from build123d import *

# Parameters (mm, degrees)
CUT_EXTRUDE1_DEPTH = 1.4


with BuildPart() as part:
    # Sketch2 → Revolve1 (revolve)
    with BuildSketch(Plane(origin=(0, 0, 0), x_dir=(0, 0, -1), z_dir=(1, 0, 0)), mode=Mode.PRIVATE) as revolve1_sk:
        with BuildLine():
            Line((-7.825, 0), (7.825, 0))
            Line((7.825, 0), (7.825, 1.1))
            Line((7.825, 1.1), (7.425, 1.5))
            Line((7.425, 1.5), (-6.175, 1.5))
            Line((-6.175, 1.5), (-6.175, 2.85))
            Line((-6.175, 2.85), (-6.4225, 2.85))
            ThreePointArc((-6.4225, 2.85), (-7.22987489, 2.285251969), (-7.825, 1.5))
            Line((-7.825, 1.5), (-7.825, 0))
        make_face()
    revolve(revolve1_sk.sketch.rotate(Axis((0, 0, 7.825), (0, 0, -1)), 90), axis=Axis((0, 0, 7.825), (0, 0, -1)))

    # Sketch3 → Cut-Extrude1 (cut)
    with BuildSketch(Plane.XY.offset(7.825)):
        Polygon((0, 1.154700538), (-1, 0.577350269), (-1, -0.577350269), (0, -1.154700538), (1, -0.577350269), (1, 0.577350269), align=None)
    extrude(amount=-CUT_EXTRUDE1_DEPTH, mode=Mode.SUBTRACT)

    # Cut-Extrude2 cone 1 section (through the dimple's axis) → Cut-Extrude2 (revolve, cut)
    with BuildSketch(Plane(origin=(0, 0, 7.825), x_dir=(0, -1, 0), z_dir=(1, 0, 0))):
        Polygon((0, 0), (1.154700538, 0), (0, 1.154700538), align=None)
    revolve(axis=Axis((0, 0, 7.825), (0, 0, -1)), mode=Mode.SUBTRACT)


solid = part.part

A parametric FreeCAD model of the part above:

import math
import FreeCAD as App
import Part
import Sketcher
Q = App.Units.Quantity

doc = App.newDocument("Part")
params = doc.addObject("Spreadsheet::Sheet", "Params")
for row, (alias, value) in enumerate([
    ("sketch1_width", "1.1 mm"),
    ("sketch1_width2", "1.5 mm"),
    ("sketch1_height", "13.6 mm"),
    ("sketch1_width3", "1.35 mm"),
    ("sketch1_height2", "15.65 mm"),
    ("revolution_angle", "360 deg"),
    ("pocket1_length", "1.4 mm"),
    ("groove_angle", "360 deg"),
], start=1):
    params.set(f"A{row}", alias)
    params.set(f"B{row}", "=" + value)
    params.setAlias(f"B{row}", alias)

body = doc.addObject("PartDesign::Body", "Body")

sketch1 = doc.addObject("Sketcher::SketchObject", "Sketch")
body.addObject(sketch1)
sketch1.AttachmentSupport = (doc.YZ_Plane, [""])
sketch1.MapMode = "FlatFace"
sketch1.addGeometry([
    Part.LineSegment(App.Vector(0, 7.83, 0), App.Vector(0, -7.83, 0)),
    Part.LineSegment(App.Vector(0, -7.83, 0), App.Vector(1.1, -7.83, 0)),
    Part.LineSegment(App.Vector(1.1, -7.83, 0), App.Vector(1.5, -7.42, 0)),
    Part.LineSegment(App.Vector(1.5, -7.42, 0), App.Vector(1.5, 6.17, 0)),
    Part.LineSegment(App.Vector(1.5, 6.17, 0), App.Vector(2.85, 6.17, 0)),
    Part.LineSegment(App.Vector(2.85, 6.17, 0), App.Vector(2.85, 6.42, 0)),
    Part.ArcOfCircle(Part.Circle(App.Vector(0, 5.03, 0), App.Vector(0, 0, 1), 3.17), math.radians(26), math.radians(62)),
    Part.LineSegment(App.Vector(1.5, 7.83, 0), App.Vector(0, 7.83, 0)),
], False)
sketch1.addConstraint([
    Sketcher.Constraint("Coincident", 0, 2, 1, 1),
    Sketcher.Constraint("Coincident", 1, 2, 2, 1),
    Sketcher.Constraint("Coincident", 2, 2, 3, 1),
    Sketcher.Constraint("Coincident", 3, 2, 4, 1),
    Sketcher.Constraint("Coincident", 4, 2, 5, 1),
    Sketcher.Constraint("Coincident", 5, 2, 6, 1),
    Sketcher.Constraint("Coincident", 6, 2, 7, 1),
    Sketcher.Constraint("Coincident", 7, 2, 0, 1),
    Sketcher.Constraint("Vertical", 0),
    Sketcher.Constraint("Horizontal", 1),
    Sketcher.Constraint("Vertical", 3),
    Sketcher.Constraint("Horizontal", 4),
    Sketcher.Constraint("Vertical", 5),
    Sketcher.Constraint("Horizontal", 7),
    Sketcher.Constraint("Symmetric", 0, 2, 7, 2, -1, 1),
    Sketcher.Constraint("PointOnObject", 6, 3, -2),
    Sketcher.Constraint("Vertical", 3, 2, 6, 2),
    Sketcher.Constraint("Angle", 2, Q("45 deg")),
    Sketcher.Constraint("DistanceX", 1, 1, 1, 2, Q("1.1 mm")),
    Sketcher.Constraint("DistanceX", 7, 2, 7, 1, Q("1.5 mm")),
    Sketcher.Constraint("DistanceY", 3, 1, 3, 2, Q("13.6 mm")),
    Sketcher.Constraint("DistanceX", 4, 1, 4, 2, Q("1.35 mm")),
    Sketcher.Constraint("DistanceY", 0, 2, 0, 1, Q("15.65 mm")),
    Sketcher.Constraint("DistanceY", 5, 1, 5, 2, Q("0.2475 mm")),
])
sketch1.setExpression("Constraints[18]", "Params.sketch1_width")
sketch1.setExpression("Constraints[19]", "Params.sketch1_width2")
sketch1.setExpression("Constraints[20]", "Params.sketch1_height")
sketch1.setExpression("Constraints[21]", "Params.sketch1_width3")
sketch1.setExpression("Constraints[22]", "Params.sketch1_height2")
revolution = doc.addObject("PartDesign::Revolution", "Revolution")
body.addObject(revolution)
revolution.Profile = sketch1
revolution.ReferenceAxis = (sketch1, ["V_Axis"])
revolution.setExpression("Angle", "Params.revolution_angle")

sketch2 = doc.addObject("Sketcher::SketchObject", "Sketch001")
body.addObject(sketch2)
sketch2.AttachmentSupport = (doc.XY_Plane, [""])
sketch2.MapMode = "FlatFace"
sketch2.AttachmentOffset = App.Placement(App.Vector(0, 0, 7.825), App.Rotation())
sketch2.addGeometry([
    Part.LineSegment(App.Vector(0, 1.2, 0), App.Vector(-1, 0.6, 0)),
    Part.LineSegment(App.Vector(-1, 0.6, 0), App.Vector(-1, -0.6, 0)),
    Part.LineSegment(App.Vector(-1, -0.6, 0), App.Vector(0, -1.2, 0)),
    Part.LineSegment(App.Vector(0, -1.2, 0), App.Vector(1, -0.6, 0)),
    Part.LineSegment(App.Vector(1, -0.6, 0), App.Vector(1, 0.6, 0)),
    Part.LineSegment(App.Vector(1, 0.6, 0), App.Vector(0, 1.2, 0)),
], False)
sketch2.addConstraint([
    Sketcher.Constraint("Coincident", 0, 2, 1, 1),
    Sketcher.Constraint("Coincident", 1, 2, 2, 1),
    Sketcher.Constraint("Coincident", 2, 2, 3, 1),
    Sketcher.Constraint("Coincident", 3, 2, 4, 1),
    Sketcher.Constraint("Coincident", 4, 2, 5, 1),
    Sketcher.Constraint("Coincident", 5, 2, 0, 1),
    Sketcher.Constraint("Vertical", 1),
    Sketcher.Constraint("Vertical", 4),
    Sketcher.Constraint("Symmetric", 0, 2, 3, 2, -1, 1),
    Sketcher.Constraint("Symmetric", 2, 2, 5, 2, -1, 1),
    Sketcher.Constraint("PointOnObject", 2, 2, -2),
    Sketcher.Constraint("Parallel", 2, 5),
    Sketcher.Constraint("Horizontal", 1, 2, 3, 2),
    Sketcher.Constraint("Angle", 0, Q("-150 deg")),
    Sketcher.Constraint("DistanceX", 0, 2, -1, 1, Q("1 mm")),
    Sketcher.Constraint("DistanceY", 1, 2, 1, 1, Q("1.154701 mm")),
])
pocket1 = doc.addObject("PartDesign::Pocket", "Pocket")
body.addObject(pocket1)
pocket1.Profile = sketch2
pocket1.setExpression("Length", "Params.pocket1_length")

sketch3 = doc.addObject("Sketcher::SketchObject", "Sketch002")
body.addObject(sketch3)
sketch3.AttachmentSupport = (doc.YZ_Plane, [""])
sketch3.MapMode = "FlatFace"
sketch3.addGeometry([
    Part.LineSegment(App.Vector(0, 7.8, 0), App.Vector(-1.2, 7.8, 0)),
    Part.LineSegment(App.Vector(-1.2, 7.8, 0), App.Vector(0, 6.7, 0)),
    Part.LineSegment(App.Vector(0, 6.7, 0), App.Vector(0, 7.8, 0)),
], False)
sketch3.addConstraint([
    Sketcher.Constraint("Coincident", 0, 2, 1, 1),
    Sketcher.Constraint("Coincident", 1, 2, 2, 1),
    Sketcher.Constraint("Coincident", 2, 2, 0, 1),
    Sketcher.Constraint("Horizontal", 0),
    Sketcher.Constraint("Vertical", 2),
    Sketcher.Constraint("PointOnObject", 1, 2, -2),
    Sketcher.Constraint("Equal", 0, 2),
    Sketcher.Constraint("DistanceX", 0, 2, 0, 1, Q("1.154701 mm")),
    Sketcher.Constraint("DistanceY", -1, 1, 0, 2, Q("7.825 mm")),
])
groove = doc.addObject("PartDesign::Groove", "Groove")
body.addObject(groove)
groove.Profile = sketch3
groove.ReferenceAxis = (sketch3, ["V_Axis"])
groove.setExpression("Angle", "Params.groove_angle")

doc.recompute()
